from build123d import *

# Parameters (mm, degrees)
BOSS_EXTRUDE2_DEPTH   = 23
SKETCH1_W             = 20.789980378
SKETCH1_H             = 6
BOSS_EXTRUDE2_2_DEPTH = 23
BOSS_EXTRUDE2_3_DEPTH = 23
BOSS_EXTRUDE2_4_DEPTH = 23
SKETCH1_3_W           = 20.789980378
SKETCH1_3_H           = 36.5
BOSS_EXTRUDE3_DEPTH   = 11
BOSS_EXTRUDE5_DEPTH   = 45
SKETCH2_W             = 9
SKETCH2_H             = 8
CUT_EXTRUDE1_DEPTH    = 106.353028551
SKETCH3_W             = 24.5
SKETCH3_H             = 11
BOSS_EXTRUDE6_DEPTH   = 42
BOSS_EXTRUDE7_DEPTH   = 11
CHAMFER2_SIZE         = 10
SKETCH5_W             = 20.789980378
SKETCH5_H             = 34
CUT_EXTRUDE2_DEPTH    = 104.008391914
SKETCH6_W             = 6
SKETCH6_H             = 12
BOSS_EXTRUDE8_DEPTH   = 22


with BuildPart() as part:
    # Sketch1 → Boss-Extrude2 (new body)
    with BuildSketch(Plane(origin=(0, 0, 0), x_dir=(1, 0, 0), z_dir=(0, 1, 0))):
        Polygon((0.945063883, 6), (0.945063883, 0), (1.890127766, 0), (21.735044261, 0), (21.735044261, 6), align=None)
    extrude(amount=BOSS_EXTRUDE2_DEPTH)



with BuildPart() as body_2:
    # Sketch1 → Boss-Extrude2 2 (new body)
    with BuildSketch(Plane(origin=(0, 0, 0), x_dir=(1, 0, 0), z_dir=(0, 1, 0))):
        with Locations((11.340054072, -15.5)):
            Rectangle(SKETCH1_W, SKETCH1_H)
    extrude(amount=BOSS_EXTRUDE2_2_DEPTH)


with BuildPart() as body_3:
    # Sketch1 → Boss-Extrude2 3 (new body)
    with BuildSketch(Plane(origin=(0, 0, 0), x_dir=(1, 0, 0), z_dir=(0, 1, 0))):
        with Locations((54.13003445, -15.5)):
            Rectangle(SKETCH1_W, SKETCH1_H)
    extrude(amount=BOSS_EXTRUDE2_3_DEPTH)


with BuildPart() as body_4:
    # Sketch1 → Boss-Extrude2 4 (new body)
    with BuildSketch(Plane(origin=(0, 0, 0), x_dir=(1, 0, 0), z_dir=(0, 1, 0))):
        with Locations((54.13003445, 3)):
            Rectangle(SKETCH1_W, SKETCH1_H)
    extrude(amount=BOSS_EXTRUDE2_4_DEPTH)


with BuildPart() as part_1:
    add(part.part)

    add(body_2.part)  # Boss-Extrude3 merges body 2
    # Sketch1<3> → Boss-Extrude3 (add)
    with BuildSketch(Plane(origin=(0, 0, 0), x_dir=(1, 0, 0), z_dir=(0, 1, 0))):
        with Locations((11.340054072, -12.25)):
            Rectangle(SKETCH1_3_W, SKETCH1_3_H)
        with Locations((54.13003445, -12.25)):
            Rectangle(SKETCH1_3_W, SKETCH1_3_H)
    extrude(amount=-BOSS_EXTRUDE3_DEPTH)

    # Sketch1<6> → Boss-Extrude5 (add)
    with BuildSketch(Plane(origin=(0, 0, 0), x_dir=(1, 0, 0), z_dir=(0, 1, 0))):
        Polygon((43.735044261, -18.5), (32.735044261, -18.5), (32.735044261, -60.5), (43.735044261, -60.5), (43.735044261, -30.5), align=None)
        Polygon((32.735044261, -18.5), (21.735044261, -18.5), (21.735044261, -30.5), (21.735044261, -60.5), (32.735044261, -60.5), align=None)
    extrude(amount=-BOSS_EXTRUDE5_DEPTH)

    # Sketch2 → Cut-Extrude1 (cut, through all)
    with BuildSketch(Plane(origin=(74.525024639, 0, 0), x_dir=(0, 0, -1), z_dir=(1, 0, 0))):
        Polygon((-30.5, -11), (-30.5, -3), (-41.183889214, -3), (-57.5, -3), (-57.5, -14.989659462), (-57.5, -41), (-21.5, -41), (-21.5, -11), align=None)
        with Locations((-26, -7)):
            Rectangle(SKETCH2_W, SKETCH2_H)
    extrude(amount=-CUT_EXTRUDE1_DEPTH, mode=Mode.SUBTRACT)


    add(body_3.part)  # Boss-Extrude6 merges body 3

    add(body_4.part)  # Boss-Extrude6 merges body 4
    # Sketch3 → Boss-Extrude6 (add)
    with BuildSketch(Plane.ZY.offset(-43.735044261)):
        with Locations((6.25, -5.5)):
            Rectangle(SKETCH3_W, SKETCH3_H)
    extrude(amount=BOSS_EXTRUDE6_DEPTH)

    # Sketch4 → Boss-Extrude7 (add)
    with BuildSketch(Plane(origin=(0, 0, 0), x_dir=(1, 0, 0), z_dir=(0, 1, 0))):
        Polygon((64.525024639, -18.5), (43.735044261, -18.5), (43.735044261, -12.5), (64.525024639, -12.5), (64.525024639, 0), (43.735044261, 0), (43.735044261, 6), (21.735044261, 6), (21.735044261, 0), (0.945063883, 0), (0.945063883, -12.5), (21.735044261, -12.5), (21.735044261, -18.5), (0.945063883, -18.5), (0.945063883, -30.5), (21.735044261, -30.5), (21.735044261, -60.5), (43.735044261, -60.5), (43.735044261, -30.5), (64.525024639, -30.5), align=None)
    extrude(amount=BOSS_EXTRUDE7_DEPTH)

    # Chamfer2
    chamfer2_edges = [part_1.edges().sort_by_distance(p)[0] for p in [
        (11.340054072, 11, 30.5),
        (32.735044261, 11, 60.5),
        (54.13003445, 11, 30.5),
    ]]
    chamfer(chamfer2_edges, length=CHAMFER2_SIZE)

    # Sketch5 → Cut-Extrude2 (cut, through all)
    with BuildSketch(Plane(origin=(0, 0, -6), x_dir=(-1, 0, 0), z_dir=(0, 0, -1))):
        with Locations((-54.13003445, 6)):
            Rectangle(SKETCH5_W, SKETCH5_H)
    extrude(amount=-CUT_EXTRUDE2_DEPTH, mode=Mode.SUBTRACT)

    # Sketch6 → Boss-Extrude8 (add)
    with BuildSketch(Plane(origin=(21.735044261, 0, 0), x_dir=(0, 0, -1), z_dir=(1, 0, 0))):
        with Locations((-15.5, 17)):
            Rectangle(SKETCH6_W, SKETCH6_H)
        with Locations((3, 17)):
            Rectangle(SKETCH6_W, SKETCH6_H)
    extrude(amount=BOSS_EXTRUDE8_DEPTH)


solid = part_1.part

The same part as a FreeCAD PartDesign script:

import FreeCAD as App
import Part
import Sketcher


def edges_at(feature, points):
    """Names of the edges that pass closest to the given points."""
    edges = feature.Shape.Edges
    near = lambda p: min(range(len(edges)), key=lambda i: edges[i].distToShape(Part.Vertex(*p))[0])
    return sorted({f"Edge{near(p) + 1}" for p in points})


def add_polygon(sketch, points):
    """Adds a closed chain of lines whose ends are joined by coincident constraints."""
    first, n = sketch.GeometryCount, len(points)
    for a, b in zip(points, points[1:] + points[:1]):
        sketch.addGeometry(Part.LineSegment(App.Vector(*a, 0), App.Vector(*b, 0)), False)
    for i in range(n):
        sketch.addConstraint(Sketcher.Constraint("Coincident", first + i, 2, first + (i + 1) % n, 1))

doc = App.newDocument("Part")
params = doc.addObject("Spreadsheet::Sheet", "Params")
for row, (alias, value) in enumerate([
    ("sketch1_height", "6 mm"),
    ("pad1_length", "23 mm"),
    ("sketch2_height", "6 mm"),
    ("pad2_length", "23 mm"),
    ("sketch3_height", "6 mm"),
    ("pad3_length", "23 mm"),
    ("sketch4_height", "6 mm"),
    ("pad4_length", "23 mm"),
    ("sketch5_height", "36.5 mm"),
    ("pad5_length", "11 mm"),
    ("sketch6_width", "22 mm"),
    ("sketch6_height", "42 mm"),
    ("pad6_length", "45 mm"),
    ("sketch7_width", "38 mm"),
    ("sketch7_height", "36 mm"),
    ("sketch8_width", "11 mm"),
    ("sketch8_height", "24.5 mm"),
    ("pad7_length", "42 mm"),
    ("sketch9_width", "22 mm"),
    ("sketch9_height", "6 mm"),
    ("sketch9_height2", "12 mm"),
    ("sketch9_height3", "30 mm"),
    ("sketch9_height4", "12.5 mm"),
    ("pad8_length", "11 mm"),
    ("chamfer_size", "10 mm"),
    ("sketch10_height", "34 mm"),
    ("sketch11_width", "12 mm"),
    ("sketch11_height", "6 mm"),
    ("pad9_length", "22 mm"),
], start=1):
    params.set(f"A{row}", alias)
    params.set(f"B{row}", "=" + value)
    params.setAlias(f"B{row}", alias)

body = doc.addObject("PartDesign::Body", "Body")

# Sketch on XZ plane
sketch1 = body.newObject("Sketcher::SketchObject", "Sketch")
sketch1.AttachmentSupport = (doc.getObject("XZ_Plane"), [""])
sketch1.MapMode = "FlatFace"
add_polygon(sketch1, [(1, -6), (1, 0), (22, 0), (22, -6)])  # lines 0-3
sketch1.addConstraint(Sketcher.Constraint("Vertical", 0))
sketch1.addConstraint(Sketcher.Constraint("Horizontal", 1))
sketch1.addConstraint(Sketcher.Constraint("Vertical", 2))
sketch1.addConstraint(Sketcher.Constraint("Horizontal", 3))
sketch1.addConstraint(Sketcher.Constraint("PointOnObject", 0, 2, -1))
sketch1.addConstraint(Sketcher.Constraint("DistanceY", 0, 1, 0, 2, 6.0))
sketch1.addConstraint(Sketcher.Constraint("DistanceX", 1, 1, 1, 2, 20.78998))
sketch1.addConstraint(Sketcher.Constraint("DistanceX", -1, 1, 0, 2, 0.945064))
sketch1.setExpression("Constraints[9]", "Params.sketch1_height")
pad1 = body.newObject("PartDesign::Pad", "Pad")
pad1.Profile = sketch1
pad1.setExpression("Length", "Params.pad1_length")
pad1.Reversed = True
body2 = doc.addObject("PartDesign::Body", "Body001")

# Sketch on XZ plane
sketch2 = body2.newObject("Sketcher::SketchObject", "Sketch001")
sketch2.AttachmentSupport = (doc.getObject("XZ_Plane001"), [""])
sketch2.MapMode = "FlatFace"
add_polygon(sketch2, [(1, 12), (1, 18), (22, 18), (22, 12)])  # lines 0-3
sketch2.addConstraint(Sketcher.Constraint("Vertical", 0))
sketch2.addConstraint(Sketcher.Constraint("Horizontal", 1))
sketch2.addConstraint(Sketcher.Constraint("Vertical", 2))
sketch2.addConstraint(Sketcher.Constraint("Horizontal", 3))
sketch2.addConstraint(Sketcher.Constraint("DistanceY", 0, 1, 0, 2, 6.0))
sketch2.addConstraint(Sketcher.Constraint("DistanceY", -1, 1, 0, 2, 18.5))
sketch2.addConstraint(Sketcher.Constraint("DistanceX", 1, 1, 1, 2, 20.78998))
sketch2.addConstraint(Sketcher.Constraint("DistanceX", -1, 1, 0, 2, 0.945064))
sketch2.setExpression("Constraints[8]", "Params.sketch2_height")
pad2 = body2.newObject("PartDesign::Pad", "Pad001")
pad2.Profile = sketch2
pad2.setExpression("Length", "Params.pad2_length")
pad2.Reversed = True
body3 = doc.addObject("PartDesign::Body", "Body002")

# Sketch on XZ plane
sketch3 = body3.newObject("Sketcher::SketchObject", "Sketch002")
sketch3.AttachmentSupport = (doc.getObject("XZ_Plane002"), [""])
sketch3.MapMode = "FlatFace"
add_polygon(sketch3, [(44, 12), (44, 18), (65, 18), (65, 12)])  # lines 0-3
sketch3.addConstraint(Sketcher.Constraint("Vertical", 0))
sketch3.addConstraint(Sketcher.Constraint("Horizontal", 1))
sketch3.addConstraint(Sketcher.Constraint("Vertical", 2))
sketch3.addConstraint(Sketcher.Constraint("Horizontal", 3))
sketch3.addConstraint(Sketcher.Constraint("DistanceY", 0, 1, 0, 2, 6.0))
sketch3.addConstraint(Sketcher.Constraint("DistanceY", -1, 1, 0, 2, 18.5))
sketch3.addConstraint(Sketcher.Constraint("DistanceX", 1, 1, 1, 2, 20.78998))
sketch3.addConstraint(Sketcher.Constraint("DistanceX", -1, 1, 0, 2, 43.735044))
sketch3.setExpression("Constraints[8]", "Params.sketch3_height")
pad3 = body3.newObject("PartDesign::Pad", "Pad002")
pad3.Profile = sketch3
pad3.setExpression("Length", "Params.pad3_length")
pad3.Reversed = True
body4 = doc.addObject("PartDesign::Body", "Body003")

# Sketch on XZ plane
sketch4 = body4.newObject("Sketcher::SketchObject", "Sketch003")
sketch4.AttachmentSupport = (doc.getObject("XZ_Plane003"), [""])
sketch4.MapMode = "FlatFace"
add_polygon(sketch4, [(44, -6), (44, 0), (65, 0), (65, -6)])  # lines 0-3
sketch4.addConstraint(Sketcher.Constraint("Vertical", 0))
sketch4.addConstraint(Sketcher.Constraint("Horizontal", 1))
sketch4.addConstraint(Sketcher.Constraint("Vertical", 2))
sketch4.addConstraint(Sketcher.Constraint("Horizontal", 3))
sketch4.addConstraint(Sketcher.Constraint("PointOnObject", 0, 2, -1))
sketch4.addConstraint(Sketcher.Constraint("DistanceY", 0, 1, 0, 2, 6.0))
sketch4.addConstraint(Sketcher.Constraint("DistanceX", 1, 1, 1, 2, 20.78998))
sketch4.addConstraint(Sketcher.Constraint("DistanceX", -1, 1, 0, 2, 43.735044))
sketch4.setExpression("Constraints[9]", "Params.sketch4_height")
pad4 = body4.newObject("PartDesign::Pad", "Pad003")
pad4.Profile = sketch4
pad4.setExpression("Length", "Params.pad4_length")
pad4.Reversed = True
body.AllowCompound = True
doc.recompute()

boolean = body.newObject("PartDesign::Boolean", "Boolean")
boolean.Type = "Fuse"
boolean.addObjects([body2])

# Sketch on XZ plane
sketch5 = body.newObject("Sketcher::SketchObject", "Sketch004")
sketch5.AttachmentSupport = (doc.getObject("XZ_Plane"), [""])
sketch5.MapMode = "FlatFace"
add_polygon(sketch5, [(1, -6), (1, 30), (22, 30), (22, -6)])  # lines 0-3
add_polygon(sketch5, [(44, -6), (44, 30), (65, 30), (65, -6)])  # lines 4-7
sketch5.addConstraint(Sketcher.Constraint("Vertical", 0))
sketch5.addConstraint(Sketcher.Constraint("Horizontal", 1))
sketch5.addConstraint(Sketcher.Constraint("Vertical", 2))
sketch5.addConstraint(Sketcher.Constraint("Horizontal", 3))
sketch5.addConstraint(Sketcher.Constraint("Vertical", 4))
sketch5.addConstraint(Sketcher.Constraint("Horizontal", 5))
sketch5.addConstraint(Sketcher.Constraint("Vertical", 6))
sketch5.addConstraint(Sketcher.Constraint("Horizontal", 7))
sketch5.addConstraint(Sketcher.Constraint("Horizontal", 1, 2, 4, 2))
sketch5.addConstraint(Sketcher.Constraint("Horizontal", 3, 2, 6, 2))
sketch5.addConstraint(Sketcher.Constraint("Equal", 3, 5))
sketch5.addConstraint(Sketcher.Constraint("DistanceY", 0, 1, 0, 2, 36.5))
sketch5.addConstraint(Sketcher.Constraint("DistanceY", 2, 2, -1, 1, 6.0))
sketch5.addConstraint(Sketcher.Constraint("DistanceX", 1, 2, 4, 2, 22.0))
sketch5.addConstraint(Sketcher.Constraint("DistanceX", 1, 1, 1, 2, 20.78998))
sketch5.addConstraint(Sketcher.Constraint("DistanceX", -1, 1, 0, 2, 0.945064))
sketch5.setExpression("Constraints[19]", "Params.sketch5_height")
pad5 = body.newObject("PartDesign::Pad", "Pad004")
pad5.Profile = sketch5
pad5.setExpression("Length", "Params.pad5_length")

# Sketch on XZ plane
sketch6 = body.newObject("Sketcher::SketchObject", "Sketch005")
sketch6.AttachmentSupport = (doc.getObject("XZ_Plane"), [""])
sketch6.MapMode = "FlatFace"
add_polygon(sketch6, [(44, 18), (22, 18), (22, 60), (44, 60)])  # lines 0-3
sketch6.addConstraint(Sketcher.Constraint("Horizontal", 0))
sketch6.addConstraint(Sketcher.Constraint("Vertical", 1))
sketch6.addConstraint(Sketcher.Constraint("Horizontal", 2))
sketch6.addConstraint(Sketcher.Constraint("Vertical", 3))
sketch6.addConstraint(Sketcher.Constraint("DistanceX", 0, 2, 0, 1, 22.0))
sketch6.addConstraint(Sketcher.Constraint("DistanceY", 1, 1, 1, 2, 42.0))
sketch6.addConstraint(Sketcher.Constraint("DistanceY", -1, 1, 0, 2, 18.5))
sketch6.addConstraint(Sketcher.Constraint("DistanceX", -1, 1, 0, 2, 21.735044))
sketch6.setExpression("Constraints[8]", "Params.sketch6_width")
sketch6.setExpression("Constraints[9]", "Params.sketch6_height")
pad6 = body.newObject("PartDesign::Pad", "Pad005")
pad6.Profile = sketch6
pad6.setExpression("Length", "Params.pad6_length")

# Sketch on YZ plane
sketch7 = body.newObject("Sketcher::SketchObject", "Sketch006")
sketch7.AttachmentSupport = (doc.getObject("YZ_Plane"), [""])
sketch7.MapMode = "FlatFace"
sketch7.AttachmentOffset = App.Placement(App.Vector(0, 0, 74.525025), App.Rotation())
add_polygon(sketch7, [(-3, 58), (-41, 58), (-41, 22), (-3, 22)])  # lines 0-3
sketch7.addConstraint(Sketcher.Constraint("Horizontal", 0))
sketch7.addConstraint(Sketcher.Constraint("Vertical", 1))
sketch7.addConstraint(Sketcher.Constraint("Horizontal", 2))
sketch7.addConstraint(Sketcher.Constraint("Vertical", 3))
sketch7.addConstraint(Sketcher.Constraint("DistanceX", 0, 2, 0, 1, 38.0))
sketch7.addConstraint(Sketcher.Constraint("DistanceY", 1, 2, 1, 1, 36.0))
sketch7.addConstraint(Sketcher.Constraint("DistanceX", 0, 2, -1, 1, 41.0))
sketch7.addConstraint(Sketcher.Constraint("DistanceY", -1, 1, 0, 2, 57.5))
sketch7.setExpression("Constraints[8]", "Params.sketch7_width")
sketch7.setExpression("Constraints[9]", "Params.sketch7_height")
pocket1 = body.newObject("PartDesign::Pocket", "Pocket")
pocket1.Profile = sketch7
pocket1.Type = "ThroughAll"
doc.recompute()

boolean2 = body.newObject("PartDesign::Boolean", "Boolean001")
boolean2.Type = "Fuse"
boolean2.addObjects([body3])
doc.recompute()

boolean3 = body.newObject("PartDesign::Boolean", "Boolean002")
boolean3.Type = "Fuse"
boolean3.addObjects([body4])

# Sketch on YZ plane
sketch8 = body.newObject("Sketcher::SketchObject", "Sketch007")
sketch8.AttachmentSupport = (doc.getObject("YZ_Plane"), [""])
sketch8.MapMode = "FlatFace"
sketch8.AttachmentOffset = App.Placement(App.Vector(0, 0, 43.735044), App.Rotation())
add_polygon(sketch8, [(0, -6), (-11, -6), (-11, 18), (0, 18)])  # lines 0-3
sketch8.addConstraint(Sketcher.Constraint("Horizontal", 0))
sketch8.addConstraint(Sketcher.Constraint("Vertical", 1))
sketch8.addConstraint(Sketcher.Constraint("Horizontal", 2))
sketch8.addConstraint(Sketcher.Constraint("Vertical", 3))
sketch8.addConstraint(Sketcher.Constraint("PointOnObject", 2, 2, -2))
sketch8.addConstraint(Sketcher.Constraint("DistanceX", 0, 2, 0, 1, 11.0))
sketch8.addConstraint(Sketcher.Constraint("DistanceY", 1, 1, 1, 2, 24.5))
sketch8.addConstraint(Sketcher.Constraint("DistanceY", 0, 2, -1, 1, 6.0))
sketch8.setExpression("Constraints[9]", "Params.sketch8_width")
sketch8.setExpression("Constraints[10]", "Params.sketch8_height")
pad7 = body.newObject("PartDesign::Pad", "Pad006")
pad7.Profile = sketch8
pad7.setExpression("Length", "Params.pad7_length")
pad7.Reversed = True

# Sketch on XZ plane
sketch9 = body.newObject("Sketcher::SketchObject", "Sketch008")
sketch9.AttachmentSupport = (doc.getObject("XZ_Plane"), [""])
sketch9.MapMode = "FlatFace"
add_polygon(sketch9, [(65, 18), (44, 18), (44, 12), (65, 12), (65, 0), (44, 0), (44, -6), (22, -6), (22, 0), (1, 0), (1, 12), (22, 12), (22, 18), (1, 18), (1, 30), (22, 30), (22, 60), (44, 60), (44, 30), (65, 30)])  # lines 0-19
sketch9.addConstraint(Sketcher.Constraint("Horizontal", 0))
sketch9.addConstraint(Sketcher.Constraint("Vertical", 1))
sketch9.addConstraint(Sketcher.Constraint("Horizontal", 2))
sketch9.addConstraint(Sketcher.Constraint("Vertical", 3))
sketch9.addConstraint(Sketcher.Constraint("Horizontal", 4))
sketch9.addConstraint(Sketcher.Constraint("Vertical", 5))
sketch9.addConstraint(Sketcher.Constraint("Horizontal", 6))
sketch9.addConstraint(Sketcher.Constraint("Vertical", 7))
sketch9.addConstraint(Sketcher.Constraint("Horizontal", 8))
sketch9.addConstraint(Sketcher.Constraint("Vertical", 9))
sketch9.addConstraint(Sketcher.Constraint("Horizontal", 10))
sketch9.addConstraint(Sketcher.Constraint("Vertical", 11))
sketch9.addConstraint(Sketcher.Constraint("Horizontal", 12))
sketch9.addConstraint(Sketcher.Constraint("Vertical", 13))
sketch9.addConstraint(Sketcher.Constraint("Horizontal", 14))
sketch9.addConstraint(Sketcher.Constraint("Vertical", 15))
sketch9.addConstraint(Sketcher.Constraint("Horizontal", 16))
sketch9.addConstraint(Sketcher.Constraint("Vertical", 17))
sketch9.addConstraint(Sketcher.Constraint("Horizontal", 18))
sketch9.addConstraint(Sketcher.Constraint("Vertical", 19))
sketch9.addConstraint(Sketcher.Constraint("PointOnObject", 3, 2, -1))
sketch9.addConstraint(Sketcher.Constraint("PointOnObject", 7, 2, -1))
sketch9.addConstraint(Sketcher.Constraint("Horizontal", 2, 2, 9, 2))
sketch9.addConstraint(Sketcher.Constraint("Horizontal", 0, 2, 11, 2))
sketch9.addConstraint(Sketcher.Constraint("Horizontal", 14, 2, 17, 2))
sketch9.addConstraint(Sketcher.Constraint("Vertical", 1, 2, 4, 2))
sketch9.addConstraint(Sketcher.Constraint("Vertical", 7, 2, 10, 2))
sketch9.addConstraint(Sketcher.Constraint("Vertical", 9, 2, 12, 2))
sketch9.addConstraint(Sketcher.Constraint("Vertical", 11, 2, 14, 2))
sketch9.addConstraint(Sketcher.Constraint("Vertical", 5, 2, 16, 2))
sketch9.addConstraint(Sketcher.Constraint("Vertical", 3, 2, 18, 2))
sketch9.addConstraint(Sketcher.Constraint("Equal", 4, 8))
sketch9.addConstraint(Sketcher.Constraint("Equal", 1, 5))
sketch9.addConstraint(Sketcher.Constraint("DistanceX", 6, 2, 6, 1, 22.0))
sketch9.addConstraint(Sketcher.Constraint("DistanceY", 1, 2, 1, 1, 6.0))
sketch9.addConstraint(Sketcher.Constraint("DistanceY", 13, 1, 13, 2, 12.0))
sketch9.addConstraint(Sketcher.Constraint("DistanceY", 15, 1, 15, 2, 30.0))
sketch9.addConstraint(Sketcher.Constraint("DistanceY", 3, 2, 3, 1, 12.5))
sketch9.addConstraint(Sketcher.Constraint("DistanceX", 0, 2, 0, 1, 20.78998))
sketch9.addConstraint(Sketcher.Constraint("DistanceX", -1, 1, 0, 2, 43.735044))
sketch9.setExpression("Constraints[53]", "Params.sketch9_width")
sketch9.setExpression("Constraints[54]", "Params.sketch9_height")
sketch9.setExpression("Constraints[55]", "Params.sketch9_height2")
sketch9.setExpression("Constraints[56]", "Params.sketch9_height3")
sketch9.setExpression("Constraints[57]", "Params.sketch9_height4")
pad8 = body.newObject("PartDesign::Pad", "Pad007")
pad8.Profile = sketch9
pad8.setExpression("Length", "Params.pad8_length")
pad8.Reversed = True
doc.recompute()

chamfer = body.newObject("PartDesign::Chamfer", "Chamfer")
chamfer.Base = (pad8, edges_at(pad8, [(11.34, 11, 30.5), (32.735, 11, 60.5), (54.13, 11, 30.5)]))
chamfer.setExpression("Size", "Params.chamfer_size")

# Sketch on XY plane
sketch10 = body.newObject("Sketcher::SketchObject", "Sketch009")
sketch10.AttachmentSupport = (doc.getObject("XY_Plane"), [""])
sketch10.MapMode = "FlatFace"
sketch10.AttachmentOffset = App.Placement(App.Vector(0, 0, -6), App.Rotation())
add_polygon(sketch10, [(65, 23), (65, -11), (44, -11), (44, 23)])  # lines 0-3
sketch10.addConstraint(Sketcher.Constraint("Vertical", 0))
sketch10.addConstraint(Sketcher.Constraint("Horizontal", 1))
sketch10.addConstraint(Sketcher.Constraint("Vertical", 2))
sketch10.addConstraint(Sketcher.Constraint("Horizontal", 3))
sketch10.addConstraint(Sketcher.Constraint("DistanceY", 0, 2, 0, 1, 34.0))
sketch10.addConstraint(Sketcher.Constraint("DistanceY", 0, 2, -1, 1, 11.0))
sketch10.addConstraint(Sketcher.Constraint("DistanceX", 1, 2, 1, 1, 20.78998))
sketch10.addConstraint(Sketcher.Constraint("DistanceX", -1, 1, 0, 2, 64.525025))
sketch10.setExpression("Constraints[8]", "Params.sketch10_height")
pocket2 = body.newObject("PartDesign::Pocket", "Pocket001")
pocket2.Profile = sketch10
pocket2.Type = "ThroughAll"
pocket2.Reversed = True

# Sketch on YZ plane
sketch11 = body.newObject("Sketcher::SketchObject", "Sketch010")
sketch11.AttachmentSupport = (doc.getObject("YZ_Plane"), [""])
sketch11.MapMode = "FlatFace"
sketch11.AttachmentOffset = App.Placement(App.Vector(0, 0, 21.735044), App.Rotation())
add_polygon(sketch11, [(23, 18), (11, 18), (11, 12), (23, 12)])  # lines 0-3
add_polygon(sketch11, [(23, 0), (11, 0), (11, -6), (23, -6)])  # lines 4-7
sketch11.addConstraint(Sketcher.Constraint("Horizontal", 0))
sketch11.addConstraint(Sketcher.Constraint("Vertical", 1))
sketch11.addConstraint(Sketcher.Constraint("Horizontal", 2))
sketch11.addConstraint(Sketcher.Constraint("Vertical", 3))
sketch11.addConstraint(Sketcher.Constraint("Horizontal", 4))
sketch11.addConstraint(Sketcher.Constraint("Vertical", 5))
sketch11.addConstraint(Sketcher.Constraint("Horizontal", 6))
sketch11.addConstraint(Sketcher.Constraint("Vertical", 7))
sketch11.addConstraint(Sketcher.Constraint("PointOnObject", 4, 2, -1))
sketch11.addConstraint(Sketcher.Constraint("Vertical", 1, 2, 4, 2))
sketch11.addConstraint(Sketcher.Constraint("Vertical", 3, 2, 6, 2))
sketch11.addConstraint(Sketcher.Constraint("Equal", 3, 5))
sketch11.addConstraint(Sketcher.Constraint("DistanceX", 0, 2, 0, 1, 12.0))
sketch11.addConstraint(Sketcher.Constraint("DistanceY", 1, 2, 1, 1, 6.0))
sketch11.addConstraint(Sketcher.Constraint("DistanceX", -1, 1, 0, 2, 11.0))
sketch11.addConstraint(Sketcher.Constraint("DistanceY", -1, 1, 0, 2, 18.5))
sketch11.setExpression("Constraints[20]", "Params.sketch11_width")
sketch11.setExpression("Constraints[21]", "Params.sketch11_height")
pad9 = body.newObject("PartDesign::Pad", "Pad008")
pad9.Profile = sketch11
pad9.setExpression("Length", "Params.pad9_length")

doc.recompute()
